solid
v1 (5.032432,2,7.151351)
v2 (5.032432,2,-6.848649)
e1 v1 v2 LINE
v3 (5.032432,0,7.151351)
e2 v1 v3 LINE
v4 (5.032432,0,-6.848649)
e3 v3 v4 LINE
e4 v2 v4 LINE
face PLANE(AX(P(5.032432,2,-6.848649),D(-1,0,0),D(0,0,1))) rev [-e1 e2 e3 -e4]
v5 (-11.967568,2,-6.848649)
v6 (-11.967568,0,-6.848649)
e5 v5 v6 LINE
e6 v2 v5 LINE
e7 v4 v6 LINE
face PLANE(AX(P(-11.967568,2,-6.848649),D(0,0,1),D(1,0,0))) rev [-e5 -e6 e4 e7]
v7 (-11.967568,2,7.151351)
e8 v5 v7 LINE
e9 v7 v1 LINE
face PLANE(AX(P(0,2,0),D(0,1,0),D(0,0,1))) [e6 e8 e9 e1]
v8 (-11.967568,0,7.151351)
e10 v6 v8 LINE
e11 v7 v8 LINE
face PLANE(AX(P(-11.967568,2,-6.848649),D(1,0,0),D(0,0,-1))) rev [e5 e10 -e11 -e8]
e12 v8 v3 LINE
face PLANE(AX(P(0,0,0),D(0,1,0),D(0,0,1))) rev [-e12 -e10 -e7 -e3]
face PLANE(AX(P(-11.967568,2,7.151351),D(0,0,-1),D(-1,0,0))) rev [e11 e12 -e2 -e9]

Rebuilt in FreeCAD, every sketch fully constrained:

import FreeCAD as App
import Part
import Sketcher
from FreeCAD import Vector

doc = App.newDocument("Part")
params = doc.addObject("Spreadsheet::Sheet", "Params")
for row, (alias, value) in enumerate([
    ("sketch1_width", "17 mm"),
    ("sketch1_height", "14 mm"),
    ("pad1_length", "2 mm"),
], start=1):
    params.set(f"A{row}", alias)
    params.set(f"B{row}", "=" + value)
    params.setAlias(f"B{row}", alias)

body = doc.addObject("PartDesign::Body", "Body")

# Sketch on XZ plane
sketch1 = doc.addObject("Sketcher::SketchObject", "Sketch")
body.addObject(sketch1)
sketch1.AttachmentSupport = (doc.XZ_Plane, [""])
sketch1.MapMode = "FlatFace"
sketch1.addGeometry([
    Part.LineSegment(Vector(-12, -7, 0), Vector(-12, 7, 0)),
    Part.LineSegment(Vector(-12, 7, 0), Vector(5, 7, 0)),
    Part.LineSegment(Vector(5, 7, 0), Vector(5, -7, 0)),
    Part.LineSegment(Vector(5, -7, 0), Vector(-12, -7, 0)),
], False)
sketch1.addConstraint([
    Sketcher.Constraint("Coincident", 0, 2, 1, 1),
    Sketcher.Constraint("Coincident", 1, 2, 2, 1),
    Sketcher.Constraint("Coincident", 2, 2, 3, 1),
    Sketcher.Constraint("Coincident", 3, 2, 0, 1),
    Sketcher.Constraint("Vertical", 0),
    Sketcher.Constraint("Horizontal", 1),
    Sketcher.Constraint("Vertical", 2),
    Sketcher.Constraint("Horizontal", 3),
    Sketcher.Constraint("DistanceX", 1, 1, 1, 2, 17.0),
    Sketcher.Constraint("DistanceY", 0, 1, 0, 2, 14.0),
    Sketcher.Constraint("DistanceY", -1, 1, 0, 2, 7.151351),
    Sketcher.Constraint("DistanceX", 0, 2, -1, 1, 11.967568),
])
sketch1.setExpression("Constraints[8]", "Params.sketch1_width")
sketch1.setExpression("Constraints[9]", "Params.sketch1_height")
pad1 = doc.addObject("PartDesign::Pad", "Pad")
body.addObject(pad1)
pad1.Profile = sketch1
pad1.setExpression("Length", "Params.pad1_length")
pad1.Reversed = True

doc.recompute()
